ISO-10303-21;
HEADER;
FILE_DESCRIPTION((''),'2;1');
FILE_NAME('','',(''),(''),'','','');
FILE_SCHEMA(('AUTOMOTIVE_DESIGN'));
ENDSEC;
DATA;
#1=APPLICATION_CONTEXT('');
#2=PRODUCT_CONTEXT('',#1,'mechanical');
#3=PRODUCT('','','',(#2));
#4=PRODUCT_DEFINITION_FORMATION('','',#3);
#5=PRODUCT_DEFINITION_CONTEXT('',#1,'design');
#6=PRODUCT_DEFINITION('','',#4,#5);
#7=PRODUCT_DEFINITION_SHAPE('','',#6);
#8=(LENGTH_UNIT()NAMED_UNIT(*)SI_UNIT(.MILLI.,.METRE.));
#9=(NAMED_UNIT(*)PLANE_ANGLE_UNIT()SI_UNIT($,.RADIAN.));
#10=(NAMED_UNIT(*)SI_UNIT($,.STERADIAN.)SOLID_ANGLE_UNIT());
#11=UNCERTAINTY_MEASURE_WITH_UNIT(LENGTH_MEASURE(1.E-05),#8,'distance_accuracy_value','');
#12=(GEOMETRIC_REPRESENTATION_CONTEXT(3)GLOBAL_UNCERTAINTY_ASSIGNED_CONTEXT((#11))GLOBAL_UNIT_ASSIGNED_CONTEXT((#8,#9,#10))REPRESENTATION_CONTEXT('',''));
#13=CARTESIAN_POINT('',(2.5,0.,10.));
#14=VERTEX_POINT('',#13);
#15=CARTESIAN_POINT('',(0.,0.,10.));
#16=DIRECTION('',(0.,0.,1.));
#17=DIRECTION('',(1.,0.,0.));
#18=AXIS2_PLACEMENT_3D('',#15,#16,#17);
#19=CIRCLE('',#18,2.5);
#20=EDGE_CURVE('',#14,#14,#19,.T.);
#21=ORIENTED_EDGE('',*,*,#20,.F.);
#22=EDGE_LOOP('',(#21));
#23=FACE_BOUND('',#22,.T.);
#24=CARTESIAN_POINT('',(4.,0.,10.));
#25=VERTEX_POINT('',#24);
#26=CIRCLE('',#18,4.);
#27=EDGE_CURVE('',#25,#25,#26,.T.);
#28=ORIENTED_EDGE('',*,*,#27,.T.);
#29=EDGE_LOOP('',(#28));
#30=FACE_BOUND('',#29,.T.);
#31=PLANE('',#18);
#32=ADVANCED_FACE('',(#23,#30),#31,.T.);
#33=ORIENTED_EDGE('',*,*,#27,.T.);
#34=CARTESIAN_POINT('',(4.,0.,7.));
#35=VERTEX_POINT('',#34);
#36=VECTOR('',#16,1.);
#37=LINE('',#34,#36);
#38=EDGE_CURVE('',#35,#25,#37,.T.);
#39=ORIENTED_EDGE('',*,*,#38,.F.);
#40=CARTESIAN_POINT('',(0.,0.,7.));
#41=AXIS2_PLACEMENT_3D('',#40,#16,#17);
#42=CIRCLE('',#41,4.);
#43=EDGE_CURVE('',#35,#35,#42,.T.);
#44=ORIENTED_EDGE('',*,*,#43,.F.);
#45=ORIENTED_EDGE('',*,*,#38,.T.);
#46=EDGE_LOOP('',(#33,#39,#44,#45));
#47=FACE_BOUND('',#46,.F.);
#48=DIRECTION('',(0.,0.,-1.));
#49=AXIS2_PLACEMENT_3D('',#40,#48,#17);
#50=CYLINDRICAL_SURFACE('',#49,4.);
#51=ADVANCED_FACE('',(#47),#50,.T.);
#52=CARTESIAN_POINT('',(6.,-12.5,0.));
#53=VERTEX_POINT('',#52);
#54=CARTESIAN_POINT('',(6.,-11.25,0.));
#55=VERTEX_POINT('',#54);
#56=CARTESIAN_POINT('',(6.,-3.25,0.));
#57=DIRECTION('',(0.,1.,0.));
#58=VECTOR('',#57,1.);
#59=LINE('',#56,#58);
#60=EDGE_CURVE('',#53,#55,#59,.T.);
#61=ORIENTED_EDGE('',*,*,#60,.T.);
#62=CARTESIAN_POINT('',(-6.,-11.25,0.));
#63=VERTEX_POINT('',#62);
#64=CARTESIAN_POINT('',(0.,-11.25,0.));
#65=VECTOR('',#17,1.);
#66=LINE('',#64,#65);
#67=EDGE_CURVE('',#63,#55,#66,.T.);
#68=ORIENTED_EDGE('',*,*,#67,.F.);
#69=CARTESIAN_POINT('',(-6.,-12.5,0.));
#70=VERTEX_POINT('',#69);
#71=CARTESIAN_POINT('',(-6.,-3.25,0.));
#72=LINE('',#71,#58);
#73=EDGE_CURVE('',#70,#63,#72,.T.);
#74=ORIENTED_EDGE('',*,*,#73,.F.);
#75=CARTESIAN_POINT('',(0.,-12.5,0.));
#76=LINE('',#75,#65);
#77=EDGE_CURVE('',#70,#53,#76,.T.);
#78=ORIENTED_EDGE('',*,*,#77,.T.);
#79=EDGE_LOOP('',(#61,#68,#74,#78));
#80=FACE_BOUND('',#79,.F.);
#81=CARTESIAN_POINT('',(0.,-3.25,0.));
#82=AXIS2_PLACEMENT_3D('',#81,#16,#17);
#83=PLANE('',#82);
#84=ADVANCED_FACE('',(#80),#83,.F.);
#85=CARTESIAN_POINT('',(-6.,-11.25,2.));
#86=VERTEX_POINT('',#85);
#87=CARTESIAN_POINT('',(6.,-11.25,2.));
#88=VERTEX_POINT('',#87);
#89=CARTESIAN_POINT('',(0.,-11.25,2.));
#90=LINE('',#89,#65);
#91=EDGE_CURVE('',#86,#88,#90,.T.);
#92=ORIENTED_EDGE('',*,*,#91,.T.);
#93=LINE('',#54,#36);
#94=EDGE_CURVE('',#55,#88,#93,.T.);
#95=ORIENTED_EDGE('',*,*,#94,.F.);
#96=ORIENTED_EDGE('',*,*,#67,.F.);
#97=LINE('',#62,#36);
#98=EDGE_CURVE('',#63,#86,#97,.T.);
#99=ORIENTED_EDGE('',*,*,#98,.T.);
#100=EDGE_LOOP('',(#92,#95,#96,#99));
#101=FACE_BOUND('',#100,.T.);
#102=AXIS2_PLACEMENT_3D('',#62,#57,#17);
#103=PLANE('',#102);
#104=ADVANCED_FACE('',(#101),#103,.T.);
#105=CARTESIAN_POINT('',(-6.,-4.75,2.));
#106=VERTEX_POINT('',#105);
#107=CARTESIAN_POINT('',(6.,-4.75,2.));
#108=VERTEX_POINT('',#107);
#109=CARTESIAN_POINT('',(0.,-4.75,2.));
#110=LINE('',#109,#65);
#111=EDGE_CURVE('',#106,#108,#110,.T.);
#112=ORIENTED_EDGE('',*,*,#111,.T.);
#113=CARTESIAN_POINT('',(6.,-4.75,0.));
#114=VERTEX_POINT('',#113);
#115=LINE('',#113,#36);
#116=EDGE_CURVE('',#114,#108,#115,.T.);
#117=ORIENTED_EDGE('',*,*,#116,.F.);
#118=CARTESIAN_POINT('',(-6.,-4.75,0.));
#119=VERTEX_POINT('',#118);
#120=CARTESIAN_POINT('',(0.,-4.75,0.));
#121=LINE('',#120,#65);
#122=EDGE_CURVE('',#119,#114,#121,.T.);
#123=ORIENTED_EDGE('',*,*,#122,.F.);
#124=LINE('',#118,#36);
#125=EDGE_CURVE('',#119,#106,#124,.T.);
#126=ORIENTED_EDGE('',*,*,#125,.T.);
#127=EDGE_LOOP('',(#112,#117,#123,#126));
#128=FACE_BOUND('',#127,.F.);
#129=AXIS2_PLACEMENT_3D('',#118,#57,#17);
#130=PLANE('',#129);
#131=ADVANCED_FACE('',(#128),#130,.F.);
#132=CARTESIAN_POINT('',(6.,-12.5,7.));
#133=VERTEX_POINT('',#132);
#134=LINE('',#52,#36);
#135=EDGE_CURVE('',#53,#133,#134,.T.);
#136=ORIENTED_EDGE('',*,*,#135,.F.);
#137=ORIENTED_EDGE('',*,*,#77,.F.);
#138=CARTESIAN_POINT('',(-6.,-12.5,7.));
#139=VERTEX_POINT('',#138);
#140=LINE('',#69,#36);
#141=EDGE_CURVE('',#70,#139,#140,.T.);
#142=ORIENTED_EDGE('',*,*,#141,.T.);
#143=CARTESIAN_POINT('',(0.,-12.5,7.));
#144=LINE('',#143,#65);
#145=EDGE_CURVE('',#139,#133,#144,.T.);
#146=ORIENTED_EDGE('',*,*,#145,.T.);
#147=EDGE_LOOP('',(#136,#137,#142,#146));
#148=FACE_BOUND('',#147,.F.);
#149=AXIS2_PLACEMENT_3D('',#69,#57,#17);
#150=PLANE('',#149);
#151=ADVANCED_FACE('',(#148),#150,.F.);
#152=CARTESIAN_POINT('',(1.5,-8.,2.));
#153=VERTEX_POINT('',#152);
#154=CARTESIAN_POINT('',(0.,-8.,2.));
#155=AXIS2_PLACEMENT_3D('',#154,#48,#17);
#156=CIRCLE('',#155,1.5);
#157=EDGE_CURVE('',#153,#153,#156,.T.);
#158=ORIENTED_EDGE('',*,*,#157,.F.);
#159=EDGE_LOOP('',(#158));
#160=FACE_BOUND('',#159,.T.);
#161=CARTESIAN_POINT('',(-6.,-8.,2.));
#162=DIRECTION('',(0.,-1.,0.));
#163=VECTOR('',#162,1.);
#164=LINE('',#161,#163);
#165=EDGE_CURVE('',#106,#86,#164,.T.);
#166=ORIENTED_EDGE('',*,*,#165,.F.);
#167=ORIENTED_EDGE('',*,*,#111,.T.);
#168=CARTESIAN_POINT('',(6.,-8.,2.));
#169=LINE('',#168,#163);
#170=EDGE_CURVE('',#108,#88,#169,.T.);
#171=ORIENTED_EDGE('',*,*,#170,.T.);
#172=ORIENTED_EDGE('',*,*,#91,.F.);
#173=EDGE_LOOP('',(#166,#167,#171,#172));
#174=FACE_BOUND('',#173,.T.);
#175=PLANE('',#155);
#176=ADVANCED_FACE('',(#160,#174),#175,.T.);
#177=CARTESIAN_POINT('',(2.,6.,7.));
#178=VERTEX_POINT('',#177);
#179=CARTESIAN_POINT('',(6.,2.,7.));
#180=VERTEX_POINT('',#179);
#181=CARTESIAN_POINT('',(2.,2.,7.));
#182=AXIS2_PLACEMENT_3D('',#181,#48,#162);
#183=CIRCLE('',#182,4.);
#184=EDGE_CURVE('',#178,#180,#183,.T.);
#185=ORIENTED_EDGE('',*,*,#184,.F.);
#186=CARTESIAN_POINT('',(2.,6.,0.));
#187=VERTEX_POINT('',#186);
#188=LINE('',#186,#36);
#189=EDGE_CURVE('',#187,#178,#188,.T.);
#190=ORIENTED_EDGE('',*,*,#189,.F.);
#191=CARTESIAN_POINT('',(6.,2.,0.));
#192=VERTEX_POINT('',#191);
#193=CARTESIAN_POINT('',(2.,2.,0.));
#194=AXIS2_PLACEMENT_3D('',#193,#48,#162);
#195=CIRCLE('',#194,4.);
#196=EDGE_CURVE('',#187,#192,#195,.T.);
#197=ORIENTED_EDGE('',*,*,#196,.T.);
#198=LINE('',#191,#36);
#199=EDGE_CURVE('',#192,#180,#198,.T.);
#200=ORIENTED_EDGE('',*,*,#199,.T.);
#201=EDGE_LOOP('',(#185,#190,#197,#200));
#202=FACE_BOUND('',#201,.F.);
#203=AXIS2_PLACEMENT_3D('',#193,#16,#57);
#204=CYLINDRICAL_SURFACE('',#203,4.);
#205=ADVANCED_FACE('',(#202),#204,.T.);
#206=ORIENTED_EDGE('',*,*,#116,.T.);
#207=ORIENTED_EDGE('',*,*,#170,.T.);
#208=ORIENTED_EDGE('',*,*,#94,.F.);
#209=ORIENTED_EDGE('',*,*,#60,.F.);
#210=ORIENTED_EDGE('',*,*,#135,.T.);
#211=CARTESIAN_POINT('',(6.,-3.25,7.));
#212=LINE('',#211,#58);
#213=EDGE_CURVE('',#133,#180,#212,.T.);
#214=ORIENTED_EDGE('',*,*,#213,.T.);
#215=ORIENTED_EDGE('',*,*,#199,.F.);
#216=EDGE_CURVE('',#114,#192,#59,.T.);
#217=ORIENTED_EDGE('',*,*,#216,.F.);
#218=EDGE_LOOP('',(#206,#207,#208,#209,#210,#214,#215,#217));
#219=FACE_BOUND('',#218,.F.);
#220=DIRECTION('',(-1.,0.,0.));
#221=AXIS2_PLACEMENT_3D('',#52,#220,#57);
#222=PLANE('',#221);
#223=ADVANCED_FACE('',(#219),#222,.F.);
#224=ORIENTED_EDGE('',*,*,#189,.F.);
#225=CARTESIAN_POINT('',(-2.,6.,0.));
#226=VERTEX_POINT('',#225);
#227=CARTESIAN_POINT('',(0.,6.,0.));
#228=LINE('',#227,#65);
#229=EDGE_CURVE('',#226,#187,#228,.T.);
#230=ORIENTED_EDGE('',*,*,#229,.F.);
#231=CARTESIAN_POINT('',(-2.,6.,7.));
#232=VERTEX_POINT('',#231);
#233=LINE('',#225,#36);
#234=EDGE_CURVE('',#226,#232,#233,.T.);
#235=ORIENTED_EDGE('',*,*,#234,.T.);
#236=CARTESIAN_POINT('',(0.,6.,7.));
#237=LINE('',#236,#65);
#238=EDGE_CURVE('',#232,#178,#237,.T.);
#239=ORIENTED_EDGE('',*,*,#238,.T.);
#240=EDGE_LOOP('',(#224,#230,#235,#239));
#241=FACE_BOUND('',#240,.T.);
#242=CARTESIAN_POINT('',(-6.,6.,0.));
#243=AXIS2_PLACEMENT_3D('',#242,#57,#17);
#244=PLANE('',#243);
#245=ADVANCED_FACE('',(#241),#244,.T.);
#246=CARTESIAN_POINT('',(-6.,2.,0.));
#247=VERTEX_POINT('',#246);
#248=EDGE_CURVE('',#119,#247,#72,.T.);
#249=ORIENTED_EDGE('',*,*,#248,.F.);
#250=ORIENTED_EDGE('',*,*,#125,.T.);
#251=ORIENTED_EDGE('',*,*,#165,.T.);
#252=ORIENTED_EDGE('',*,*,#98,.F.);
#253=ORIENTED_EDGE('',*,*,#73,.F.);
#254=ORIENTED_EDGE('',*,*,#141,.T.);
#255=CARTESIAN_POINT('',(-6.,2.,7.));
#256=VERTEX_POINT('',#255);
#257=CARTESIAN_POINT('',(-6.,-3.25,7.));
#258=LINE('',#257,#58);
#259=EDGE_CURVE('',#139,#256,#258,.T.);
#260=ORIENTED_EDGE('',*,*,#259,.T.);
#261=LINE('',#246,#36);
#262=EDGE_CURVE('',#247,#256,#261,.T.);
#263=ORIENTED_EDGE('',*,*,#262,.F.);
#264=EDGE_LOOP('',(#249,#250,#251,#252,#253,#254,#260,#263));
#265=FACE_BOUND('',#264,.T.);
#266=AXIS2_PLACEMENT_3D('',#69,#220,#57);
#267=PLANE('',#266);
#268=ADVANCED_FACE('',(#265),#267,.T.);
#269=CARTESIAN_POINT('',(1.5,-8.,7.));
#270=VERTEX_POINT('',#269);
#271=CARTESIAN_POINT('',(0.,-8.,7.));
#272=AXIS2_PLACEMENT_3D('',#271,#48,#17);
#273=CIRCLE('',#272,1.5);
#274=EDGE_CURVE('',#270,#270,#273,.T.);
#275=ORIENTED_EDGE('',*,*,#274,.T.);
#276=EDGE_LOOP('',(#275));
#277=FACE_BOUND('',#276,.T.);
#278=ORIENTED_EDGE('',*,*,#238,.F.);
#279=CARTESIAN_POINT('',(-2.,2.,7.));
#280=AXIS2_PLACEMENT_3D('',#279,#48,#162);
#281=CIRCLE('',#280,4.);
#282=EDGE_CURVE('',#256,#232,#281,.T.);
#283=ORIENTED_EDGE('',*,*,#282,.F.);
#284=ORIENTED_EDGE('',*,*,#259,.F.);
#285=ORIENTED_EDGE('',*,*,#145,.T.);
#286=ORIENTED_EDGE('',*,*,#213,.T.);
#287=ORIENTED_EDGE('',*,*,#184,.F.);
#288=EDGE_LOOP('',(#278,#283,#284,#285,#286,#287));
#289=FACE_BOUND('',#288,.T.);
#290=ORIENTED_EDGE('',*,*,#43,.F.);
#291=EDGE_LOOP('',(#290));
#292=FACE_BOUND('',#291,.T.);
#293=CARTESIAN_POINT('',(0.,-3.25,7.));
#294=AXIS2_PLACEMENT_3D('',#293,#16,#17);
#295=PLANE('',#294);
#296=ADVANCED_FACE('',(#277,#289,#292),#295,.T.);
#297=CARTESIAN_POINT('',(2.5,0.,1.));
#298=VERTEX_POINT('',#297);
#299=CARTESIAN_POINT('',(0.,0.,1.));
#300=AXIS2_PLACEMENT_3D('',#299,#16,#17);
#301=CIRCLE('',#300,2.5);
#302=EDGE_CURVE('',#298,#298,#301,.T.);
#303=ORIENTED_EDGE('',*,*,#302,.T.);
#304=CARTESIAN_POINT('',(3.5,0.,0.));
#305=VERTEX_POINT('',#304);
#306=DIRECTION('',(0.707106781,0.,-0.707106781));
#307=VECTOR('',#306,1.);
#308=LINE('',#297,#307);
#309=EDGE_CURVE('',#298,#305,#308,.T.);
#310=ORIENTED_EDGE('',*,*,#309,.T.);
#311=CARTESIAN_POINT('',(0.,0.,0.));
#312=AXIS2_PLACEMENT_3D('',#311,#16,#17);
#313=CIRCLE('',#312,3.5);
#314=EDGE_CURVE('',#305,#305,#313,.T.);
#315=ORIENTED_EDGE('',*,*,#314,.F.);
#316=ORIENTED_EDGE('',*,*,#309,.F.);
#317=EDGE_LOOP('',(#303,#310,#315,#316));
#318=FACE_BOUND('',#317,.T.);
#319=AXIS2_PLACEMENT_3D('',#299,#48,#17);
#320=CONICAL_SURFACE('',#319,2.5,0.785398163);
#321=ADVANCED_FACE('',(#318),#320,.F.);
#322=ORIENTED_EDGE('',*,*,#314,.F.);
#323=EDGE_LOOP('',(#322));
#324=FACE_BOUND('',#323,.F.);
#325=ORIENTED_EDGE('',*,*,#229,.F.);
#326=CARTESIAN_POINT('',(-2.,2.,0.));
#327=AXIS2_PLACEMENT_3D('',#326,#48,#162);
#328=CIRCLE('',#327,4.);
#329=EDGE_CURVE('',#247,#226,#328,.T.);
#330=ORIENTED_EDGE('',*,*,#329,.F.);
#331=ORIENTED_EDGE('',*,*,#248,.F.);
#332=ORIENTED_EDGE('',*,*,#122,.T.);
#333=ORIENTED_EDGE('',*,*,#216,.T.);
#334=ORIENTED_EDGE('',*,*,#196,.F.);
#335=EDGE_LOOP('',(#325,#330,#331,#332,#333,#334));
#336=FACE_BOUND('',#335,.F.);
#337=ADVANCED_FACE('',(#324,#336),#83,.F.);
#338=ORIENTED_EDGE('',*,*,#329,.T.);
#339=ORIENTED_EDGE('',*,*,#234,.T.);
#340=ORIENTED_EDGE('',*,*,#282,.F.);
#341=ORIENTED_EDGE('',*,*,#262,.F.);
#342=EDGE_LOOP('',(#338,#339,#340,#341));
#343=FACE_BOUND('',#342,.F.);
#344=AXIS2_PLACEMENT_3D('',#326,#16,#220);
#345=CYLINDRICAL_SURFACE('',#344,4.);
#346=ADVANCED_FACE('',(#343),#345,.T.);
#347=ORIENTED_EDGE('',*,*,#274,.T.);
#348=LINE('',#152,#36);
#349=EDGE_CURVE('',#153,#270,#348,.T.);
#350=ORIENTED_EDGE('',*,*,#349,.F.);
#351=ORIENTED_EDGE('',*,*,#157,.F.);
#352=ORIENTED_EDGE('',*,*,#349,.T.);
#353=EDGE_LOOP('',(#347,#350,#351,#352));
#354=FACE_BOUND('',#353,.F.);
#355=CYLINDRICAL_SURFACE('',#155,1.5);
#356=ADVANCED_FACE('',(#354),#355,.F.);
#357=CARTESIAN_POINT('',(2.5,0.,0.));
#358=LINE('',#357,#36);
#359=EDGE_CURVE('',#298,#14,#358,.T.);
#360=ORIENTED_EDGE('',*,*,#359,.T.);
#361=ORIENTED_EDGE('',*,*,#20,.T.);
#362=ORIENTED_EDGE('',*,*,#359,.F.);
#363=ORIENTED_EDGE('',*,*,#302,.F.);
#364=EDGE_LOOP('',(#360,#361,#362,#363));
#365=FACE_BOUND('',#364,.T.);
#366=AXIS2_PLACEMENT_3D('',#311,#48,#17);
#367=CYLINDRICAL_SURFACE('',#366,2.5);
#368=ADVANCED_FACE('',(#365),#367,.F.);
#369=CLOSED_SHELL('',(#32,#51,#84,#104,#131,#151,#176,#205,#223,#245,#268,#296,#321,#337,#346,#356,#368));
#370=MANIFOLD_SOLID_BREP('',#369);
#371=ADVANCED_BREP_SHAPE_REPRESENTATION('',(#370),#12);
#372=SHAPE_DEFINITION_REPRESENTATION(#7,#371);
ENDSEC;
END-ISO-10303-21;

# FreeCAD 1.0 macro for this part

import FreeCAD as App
import Part
import Sketcher
Q = App.Units.Quantity


def edges_at(feature, points):
    """Names of the edges that pass closest to the given points."""
    edges = feature.Shape.Edges
    near = lambda p: min(range(len(edges)), key=lambda i: edges[i].distToShape(Part.Vertex(*p))[0])
    return sorted({f"Edge{near(p) + 1}" for p in points})


def add_polygon(sketch, points):
    """Adds a closed chain of lines whose ends are joined by coincident constraints."""
    first, n = sketch.GeometryCount, len(points)
    for a, b in zip(points, points[1:] + points[:1]):
        sketch.addGeometry(Part.LineSegment(App.Vector(*a, 0), App.Vector(*b, 0)), False)
    for i in range(n):
        sketch.addConstraint(Sketcher.Constraint("Coincident", first + i, 2, first + (i + 1) % n, 1))

doc = App.newDocument("Part")
params = doc.addObject("Spreadsheet::Sheet", "Params")
for row, (alias, value) in enumerate([
    ("sketch1_diameter", "5 mm"),
    ("sketch1_width", "12 mm"),
    ("sketch1_height", "18.5 mm"),
    ("pad1_length", "7 mm"),
    ("sketch2_width", "12 mm"),
    ("sketch2_height", "6.5 mm"),
    ("pocket1_length", "2 mm"),
    ("sketch3_diameter", "3 mm"),
    ("sketch4_diameter", "8 mm"),
    ("pad2_length", "3 mm"),
    ("sketch5_diameter", "5 mm"),
    ("pocket3_length", "5 mm"),
    ("fillet_radius", "4 mm"),
    ("chamfer_size", "1 mm"),
], start=1):
    params.set(f"A{row}", alias)
    params.set(f"B{row}", "=" + value)
    params.setAlias(f"B{row}", alias)

body = doc.addObject("PartDesign::Body", "Body")

# Sketch on XY plane
sketch1 = body.newObject("Sketcher::SketchObject", "Sketch")
sketch1.AttachmentSupport = (doc.getObject("XY_Plane"), [""])
sketch1.MapMode = "FlatFace"
add_polygon(sketch1, [(-6, 6), (-6, -12.5), (6, -12.5), (6, 6)])  # lines 0-3
sketch1.addGeometry(Part.Circle(App.Vector(0, 0, 0), App.Vector(0, 0, 1), 2.5), False)  # 4
sketch1.addConstraint(Sketcher.Constraint("Vertical", 0))
sketch1.addConstraint(Sketcher.Constraint("Horizontal", 1))
sketch1.addConstraint(Sketcher.Constraint("Vertical", 2))
sketch1.addConstraint(Sketcher.Constraint("Horizontal", 3))
sketch1.addConstraint(Sketcher.Constraint("Coincident", 4, 3, -1, 1))
sketch1.addConstraint(Sketcher.Constraint("Diameter", 4, Q("5 mm")))
sketch1.addConstraint(Sketcher.Constraint("DistanceX", 1, 1, 1, 2, Q("12 mm")))
sketch1.addConstraint(Sketcher.Constraint("DistanceY", 0, 2, 0, 1, Q("18.5 mm")))
sketch1.addConstraint(Sketcher.Constraint("DistanceX", 0, 2, -1, 1, Q("6 mm")))
sketch1.addConstraint(Sketcher.Constraint("DistanceY", -1, 1, 2, 2, Q("6 mm")))
sketch1.setExpression("Constraints[9]", "Params.sketch1_diameter")
sketch1.setExpression("Constraints[10]", "Params.sketch1_width")
sketch1.setExpression("Constraints[11]", "Params.sketch1_height")
pad1 = body.newObject("PartDesign::Pad", "Pad")
pad1.Profile = sketch1
pad1.setExpression("Length", "Params.pad1_length")

# Sketch on XY plane
sketch2 = body.newObject("Sketcher::SketchObject", "Sketch001")
sketch2.AttachmentSupport = (doc.getObject("XY_Plane"), [""])
sketch2.MapMode = "FlatFace"
add_polygon(sketch2, [(-6, -11), (-6, -5), (6, -5), (6, -11)])  # lines 0-3
sketch2.addConstraint(Sketcher.Constraint("Vertical", 0))
sketch2.addConstraint(Sketcher.Constraint("Horizontal", 1))
sketch2.addConstraint(Sketcher.Constraint("Vertical", 2))
sketch2.addConstraint(Sketcher.Constraint("Horizontal", 3))
sketch2.addConstraint(Sketcher.Constraint("DistanceX", 1, 1, 1, 2, Q("12 mm")))
sketch2.addConstraint(Sketcher.Constraint("DistanceY", 0, 1, 0, 2, Q("6.5 mm")))
sketch2.addConstraint(Sketcher.Constraint("DistanceX", 0, 2, -1, 1, Q("6 mm")))
sketch2.addConstraint(Sketcher.Constraint("DistanceY", 0, 2, -1, 1, Q("4.75 mm")))
sketch2.setExpression("Constraints[8]", "Params.sketch2_width")
sketch2.setExpression("Constraints[9]", "Params.sketch2_height")
pocket1 = body.newObject("PartDesign::Pocket", "Pocket")
pocket1.Profile = sketch2
pocket1.setExpression("Length", "Params.pocket1_length")
pocket1.Reversed = True

# Sketch on XY plane
sketch3 = body.newObject("Sketcher::SketchObject", "Sketch002")
sketch3.AttachmentSupport = (doc.getObject("XY_Plane"), [""])
sketch3.MapMode = "FlatFace"
sketch3.AttachmentOffset = App.Placement(App.Vector(0, 0, 2), App.Rotation())
sketch3.addGeometry(Part.Circle(App.Vector(0, -8, 0), App.Vector(0, 0, 1), 1.5), False)
sketch3.addConstraint(Sketcher.Constraint("PointOnObject", 0, 3, -2))
sketch3.addConstraint(Sketcher.Constraint("Diameter", 0, Q("3 mm")))
sketch3.addConstraint(Sketcher.Constraint("DistanceY", 0, 3, -1, 1, Q("8 mm")))
sketch3.setExpression("Constraints[1]", "Params.sketch3_diameter")
pocket2 = body.newObject("PartDesign::Pocket", "Pocket001")
pocket2.Profile = sketch3
pocket2.Type = "ThroughAll"
pocket2.Reversed = True

# Sketch on XY plane
sketch4 = body.newObject("Sketcher::SketchObject", "Sketch003")
sketch4.AttachmentSupport = (doc.getObject("XY_Plane"), [""])
sketch4.MapMode = "FlatFace"
sketch4.AttachmentOffset = App.Placement(App.Vector(0, 0, 7), App.Rotation())
sketch4.addGeometry(Part.Circle(App.Vector(0, 0, 0), App.Vector(0, 0, 1), 4), False)
sketch4.addConstraint(Sketcher.Constraint("Coincident", 0, 3, -1, 1))
sketch4.addConstraint(Sketcher.Constraint("Diameter", 0, Q("8 mm")))
sketch4.setExpression("Constraints[1]", "Params.sketch4_diameter")
pad2 = body.newObject("PartDesign::Pad", "Pad001")
pad2.Profile = sketch4
pad2.setExpression("Length", "Params.pad2_length")

# Sketch on XY plane
sketch5 = body.newObject("Sketcher::SketchObject", "Sketch004")
sketch5.AttachmentSupport = (doc.getObject("XY_Plane"), [""])
sketch5.MapMode = "FlatFace"
sketch5.AttachmentOffset = App.Placement(App.Vector(0, 0, 10), App.Rotation())
sketch5.addGeometry(Part.Circle(App.Vector(0, 0, 0), App.Vector(0, 0, 1), 2.5), False)
sketch5.addConstraint(Sketcher.Constraint("Coincident", 0, 3, -1, 1))
sketch5.addConstraint(Sketcher.Constraint("Diameter", 0, Q("5 mm")))
sketch5.setExpression("Constraints[1]", "Params.sketch5_diameter")
pocket3 = body.newObject("PartDesign::Pocket", "Pocket002")
pocket3.Profile = sketch5
pocket3.setExpression("Length", "Params.pocket3_length")
doc.recompute()

fillet = body.newObject("PartDesign::Fillet", "Fillet")
fillet.Base = (pocket3, edges_at(pocket3, [(6, 6, 3.5), (-6, 6, 3.5)]))
fillet.setExpression("Radius", "Params.fillet_radius")
doc.recompute()

chamfer = body.newObject("PartDesign::Chamfer", "Chamfer")
chamfer.Base = (fillet, edges_at(fillet, [(-2.5, 0, 0)]))
chamfer.setExpression("Size", "Params.chamfer_size")

doc.recompute()
